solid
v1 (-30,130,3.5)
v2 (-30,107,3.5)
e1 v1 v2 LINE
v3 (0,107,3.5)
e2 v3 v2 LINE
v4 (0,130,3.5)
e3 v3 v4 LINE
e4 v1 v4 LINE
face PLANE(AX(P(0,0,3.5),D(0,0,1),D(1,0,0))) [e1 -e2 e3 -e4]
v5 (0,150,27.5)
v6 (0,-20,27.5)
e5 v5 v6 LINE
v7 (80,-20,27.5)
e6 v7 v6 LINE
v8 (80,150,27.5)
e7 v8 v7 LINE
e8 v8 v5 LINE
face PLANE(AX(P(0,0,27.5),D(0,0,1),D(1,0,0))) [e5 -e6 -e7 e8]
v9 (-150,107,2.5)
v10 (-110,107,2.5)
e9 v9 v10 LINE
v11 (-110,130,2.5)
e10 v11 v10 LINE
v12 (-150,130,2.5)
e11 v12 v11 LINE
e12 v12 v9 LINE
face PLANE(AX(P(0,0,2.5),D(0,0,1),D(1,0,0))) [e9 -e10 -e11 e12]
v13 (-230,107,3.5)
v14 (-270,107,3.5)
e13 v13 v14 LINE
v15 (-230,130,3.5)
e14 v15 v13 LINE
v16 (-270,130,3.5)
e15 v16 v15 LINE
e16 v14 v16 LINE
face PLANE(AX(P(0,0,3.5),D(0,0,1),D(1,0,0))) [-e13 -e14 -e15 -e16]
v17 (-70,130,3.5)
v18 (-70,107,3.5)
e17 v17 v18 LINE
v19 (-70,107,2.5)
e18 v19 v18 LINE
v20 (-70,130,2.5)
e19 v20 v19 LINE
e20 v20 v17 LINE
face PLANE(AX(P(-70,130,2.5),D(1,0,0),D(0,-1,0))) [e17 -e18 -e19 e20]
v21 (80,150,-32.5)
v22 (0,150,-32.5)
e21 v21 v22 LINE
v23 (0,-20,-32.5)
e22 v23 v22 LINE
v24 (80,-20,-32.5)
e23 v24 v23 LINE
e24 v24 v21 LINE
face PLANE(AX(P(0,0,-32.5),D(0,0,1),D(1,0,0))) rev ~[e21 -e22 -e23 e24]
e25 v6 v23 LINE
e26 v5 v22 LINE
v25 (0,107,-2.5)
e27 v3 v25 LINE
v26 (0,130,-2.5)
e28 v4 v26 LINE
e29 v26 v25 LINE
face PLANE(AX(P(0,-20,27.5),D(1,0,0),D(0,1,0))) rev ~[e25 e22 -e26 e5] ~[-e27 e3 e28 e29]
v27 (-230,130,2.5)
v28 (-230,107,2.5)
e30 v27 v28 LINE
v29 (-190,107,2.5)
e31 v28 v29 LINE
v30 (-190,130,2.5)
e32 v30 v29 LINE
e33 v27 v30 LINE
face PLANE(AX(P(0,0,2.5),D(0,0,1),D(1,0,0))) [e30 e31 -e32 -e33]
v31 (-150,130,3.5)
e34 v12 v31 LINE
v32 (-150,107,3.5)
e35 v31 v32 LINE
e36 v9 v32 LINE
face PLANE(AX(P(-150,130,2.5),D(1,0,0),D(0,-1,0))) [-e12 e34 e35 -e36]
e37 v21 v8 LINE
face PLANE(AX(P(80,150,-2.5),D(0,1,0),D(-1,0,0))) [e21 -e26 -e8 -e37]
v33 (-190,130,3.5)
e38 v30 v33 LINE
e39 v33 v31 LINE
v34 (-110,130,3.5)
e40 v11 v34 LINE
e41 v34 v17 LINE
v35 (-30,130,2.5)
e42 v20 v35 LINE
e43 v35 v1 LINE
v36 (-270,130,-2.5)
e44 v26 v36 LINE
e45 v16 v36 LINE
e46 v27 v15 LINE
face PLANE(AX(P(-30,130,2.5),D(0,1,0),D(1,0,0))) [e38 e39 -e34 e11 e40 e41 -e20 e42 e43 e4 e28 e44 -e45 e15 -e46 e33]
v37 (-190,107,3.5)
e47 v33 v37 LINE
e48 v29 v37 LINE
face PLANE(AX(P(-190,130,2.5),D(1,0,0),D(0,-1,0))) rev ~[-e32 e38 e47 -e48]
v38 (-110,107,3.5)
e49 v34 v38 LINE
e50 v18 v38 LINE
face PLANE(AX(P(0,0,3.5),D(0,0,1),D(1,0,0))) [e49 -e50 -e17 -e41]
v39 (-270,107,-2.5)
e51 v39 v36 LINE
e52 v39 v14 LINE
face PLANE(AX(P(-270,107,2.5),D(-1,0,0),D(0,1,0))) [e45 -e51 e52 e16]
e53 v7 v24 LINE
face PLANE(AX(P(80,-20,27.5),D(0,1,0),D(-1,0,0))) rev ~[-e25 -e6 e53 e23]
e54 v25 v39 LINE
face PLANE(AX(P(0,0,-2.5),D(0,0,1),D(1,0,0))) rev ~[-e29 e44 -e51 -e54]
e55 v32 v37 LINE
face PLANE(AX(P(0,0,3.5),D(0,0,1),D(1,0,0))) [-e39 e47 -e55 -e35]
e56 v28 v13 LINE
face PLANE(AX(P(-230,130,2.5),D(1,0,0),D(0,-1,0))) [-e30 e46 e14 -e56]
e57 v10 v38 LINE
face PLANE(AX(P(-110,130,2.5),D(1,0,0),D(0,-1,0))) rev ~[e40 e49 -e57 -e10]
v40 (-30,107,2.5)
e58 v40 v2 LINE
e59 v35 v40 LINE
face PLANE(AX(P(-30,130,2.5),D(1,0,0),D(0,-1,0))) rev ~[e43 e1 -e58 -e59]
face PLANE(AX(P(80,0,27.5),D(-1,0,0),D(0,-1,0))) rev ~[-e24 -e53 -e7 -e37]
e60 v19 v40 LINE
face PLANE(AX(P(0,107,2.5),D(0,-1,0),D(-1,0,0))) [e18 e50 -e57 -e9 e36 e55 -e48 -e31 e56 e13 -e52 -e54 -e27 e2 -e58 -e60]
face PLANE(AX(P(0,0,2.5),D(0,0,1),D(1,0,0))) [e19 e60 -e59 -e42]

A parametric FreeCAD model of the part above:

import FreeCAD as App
import Part
import Sketcher
Q = App.Units.Quantity

doc = App.newDocument("Part")
params = doc.addObject("Spreadsheet::Sheet", "Params")
for row, (alias, value) in enumerate([
    ("sketch1_width", "300 mm"),
    ("sketch1_height", "23 mm"),
    ("pad1_length", "5 mm"),
    ("sketch2_width", "80 mm"),
    ("sketch2_height", "150 mm"),
    ("pad2_length", "60 mm"),
    ("sketch3_width", "40 mm"),
    ("sketch3_height", "23 mm"),
    ("pad3_length", "1 mm"),
    ("sketch4_width", "40 mm"),
    ("sketch4_height", "23 mm"),
    ("pad4_length", "1 mm"),
    ("sketch5_width", "40 mm"),
    ("sketch5_height", "23 mm"),
    ("pad5_length", "1 mm"),
    ("sketch6_width", "30 mm"),
    ("sketch6_height", "23 mm"),
    ("pad6_length", "1 mm"),
    ("sketch7_height", "20 mm"),
    ("sketch7_width", "80 mm"),
    ("pad7_length", "60 mm"),
], start=1):
    params.set(f"A{row}", alias)
    params.set(f"B{row}", "=" + value)
    params.setAlias(f"B{row}", alias)

body = doc.addObject("PartDesign::Body", "Body")

sketch1 = body.newObject("Sketcher::SketchObject", "Sketch")
sketch1.AttachmentSupport = (doc.getObject("XY_Plane"), [""])
sketch1.MapMode = "FlatFace"
sketch1.addGeometry([
    Part.LineSegment(App.Vector(-270, 130, 0), App.Vector(-270, 107, 0)),
    Part.LineSegment(App.Vector(-270, 107, 0), App.Vector(30, 107, 0)),
    Part.LineSegment(App.Vector(30, 107, 0), App.Vector(30, 130, 0)),
    Part.LineSegment(App.Vector(30, 130, 0), App.Vector(-270, 130, 0)),
], False)
sketch1.addConstraint([
    Sketcher.Constraint("Coincident", 0, 2, 1, 1),
    Sketcher.Constraint("Coincident", 1, 2, 2, 1),
    Sketcher.Constraint("Coincident", 2, 2, 3, 1),
    Sketcher.Constraint("Coincident", 3, 2, 0, 1),
    Sketcher.Constraint("Vertical", 0),
    Sketcher.Constraint("Horizontal", 1),
    Sketcher.Constraint("Vertical", 2),
    Sketcher.Constraint("Horizontal", 3),
    Sketcher.Constraint("DistanceX", 1, 1, 1, 2, Q("300 mm")),
    Sketcher.Constraint("DistanceY", 0, 2, 0, 1, Q("23 mm")),
    Sketcher.Constraint("DistanceX", -1, 1, 1, 2, Q("30 mm")),
    Sketcher.Constraint("DistanceY", -1, 1, 0, 2, Q("107 mm")),
])
sketch1.setExpression("Constraints[8]", "Params.sketch1_width")
sketch1.setExpression("Constraints[9]", "Params.sketch1_height")
pad1 = body.newObject("PartDesign::Pad", "Pad")
pad1.Profile = sketch1
pad1.setExpression("Length", "Params.pad1_length")
pad1.Midplane = True

sketch2 = body.newObject("Sketcher::SketchObject", "Sketch001")
sketch2.AttachmentSupport = (doc.getObject("XY_Plane"), [""])
sketch2.MapMode = "FlatFace"
sketch2.AttachmentOffset = App.Placement(App.Vector(0, 0, -2.5), App.Rotation())
sketch2.addGeometry([
    Part.LineSegment(App.Vector(80, 0, 0), App.Vector(0, 0, 0)),
    Part.LineSegment(App.Vector(0, 0, 0), App.Vector(0, 150, 0)),
    Part.LineSegment(App.Vector(0, 150, 0), App.Vector(80, 150, 0)),
    Part.LineSegment(App.Vector(80, 150, 0), App.Vector(80, 0, 0)),
], False)
sketch2.addConstraint([
    Sketcher.Constraint("Coincident", 0, 2, 1, 1),
    Sketcher.Constraint("Coincident", 1, 2, 2, 1),
    Sketcher.Constraint("Coincident", 2, 2, 3, 1),
    Sketcher.Constraint("Coincident", 3, 2, 0, 1),
    Sketcher.Constraint("Horizontal", 0),
    Sketcher.Constraint("Vertical", 1),
    Sketcher.Constraint("Horizontal", 2),
    Sketcher.Constraint("Vertical", 3),
    Sketcher.Constraint("Coincident", 0, 2, -1, 1),
    Sketcher.Constraint("DistanceX", 0, 2, 0, 1, Q("80 mm")),
    Sketcher.Constraint("DistanceY", 1, 1, 1, 2, Q("150 mm")),
])
sketch2.setExpression("Constraints[9]", "Params.sketch2_width")
sketch2.setExpression("Constraints[10]", "Params.sketch2_height")
pad2 = body.newObject("PartDesign::Pad", "Pad001")
pad2.Profile = sketch2
pad2.setExpression("Length", "Params.pad2_length")
pad2.Midplane = True

sketch3 = body.newObject("Sketcher::SketchObject", "Sketch002")
sketch3.AttachmentSupport = (doc.getObject("XY_Plane"), [""])
sketch3.MapMode = "FlatFace"
sketch3.AttachmentOffset = App.Placement(App.Vector(0, 0, 2.5), App.Rotation())
sketch3.addGeometry([
    Part.LineSegment(App.Vector(-270, 130, 0), App.Vector(-270, 107, 0)),
    Part.LineSegment(App.Vector(-270, 107, 0), App.Vector(-230, 107, 0)),
    Part.LineSegment(App.Vector(-230, 107, 0), App.Vector(-230, 130, 0)),
    Part.LineSegment(App.Vector(-230, 130, 0), App.Vector(-270, 130, 0)),
], False)
sketch3.addConstraint([
    Sketcher.Constraint("Coincident", 0, 2, 1, 1),
    Sketcher.Constraint("Coincident", 1, 2, 2, 1),
    Sketcher.Constraint("Coincident", 2, 2, 3, 1),
    Sketcher.Constraint("Coincident", 3, 2, 0, 1),
    Sketcher.Constraint("Vertical", 0),
    Sketcher.Constraint("Horizontal", 1),
    Sketcher.Constraint("Vertical", 2),
    Sketcher.Constraint("Horizontal", 3),
    Sketcher.Constraint("DistanceX", 1, 1, 1, 2, Q("40 mm")),
    Sketcher.Constraint("DistanceY", 0, 2, 0, 1, Q("23 mm")),
    Sketcher.Constraint("DistanceX", 0, 2, -1, 1, Q("270 mm")),
    Sketcher.Constraint("DistanceY", -1, 1, 0, 2, Q("107 mm")),
])
sketch3.setExpression("Constraints[8]", "Params.sketch3_width")
sketch3.setExpression("Constraints[9]", "Params.sketch3_height")
pad3 = body.newObject("PartDesign::Pad", "Pad002")
pad3.Profile = sketch3
pad3.setExpression("Length", "Params.pad3_length")

sketch4 = body.newObject("Sketcher::SketchObject", "Sketch003")
sketch4.AttachmentSupport = (doc.getObject("XY_Plane"), [""])
sketch4.MapMode = "FlatFace"
sketch4.AttachmentOffset = App.Placement(App.Vector(0, 0, 2.5), App.Rotation())
sketch4.addGeometry([
    Part.LineSegment(App.Vector(-190, 130, 0), App.Vector(-190, 107, 0)),
    Part.LineSegment(App.Vector(-190, 107, 0), App.Vector(-150, 107, 0)),
    Part.LineSegment(App.Vector(-150, 107, 0), App.Vector(-150, 130, 0)),
    Part.LineSegment(App.Vector(-150, 130, 0), App.Vector(-190, 130, 0)),
], False)
sketch4.addConstraint([
    Sketcher.Constraint("Coincident", 0, 2, 1, 1),
    Sketcher.Constraint("Coincident", 1, 2, 2, 1),
    Sketcher.Constraint("Coincident", 2, 2, 3, 1),
    Sketcher.Constraint("Coincident", 3, 2, 0, 1),
    Sketcher.Constraint("Vertical", 0),
    Sketcher.Constraint("Horizontal", 1),
    Sketcher.Constraint("Vertical", 2),
    Sketcher.Constraint("Horizontal", 3),
    Sketcher.Constraint("DistanceX", 1, 1, 1, 2, Q("40 mm")),
    Sketcher.Constraint("DistanceY", 0, 2, 0, 1, Q("23 mm")),
    Sketcher.Constraint("DistanceX", 0, 2, -1, 1, Q("190 mm")),
    Sketcher.Constraint("DistanceY", -1, 1, 0, 2, Q("107 mm")),
])
sketch4.setExpression("Constraints[8]", "Params.sketch4_width")
sketch4.setExpression("Constraints[9]", "Params.sketch4_height")
pad4 = body.newObject("PartDesign::Pad", "Pad003")
pad4.Profile = sketch4
pad4.setExpression("Length", "Params.pad4_length")

sketch5 = body.newObject("Sketcher::SketchObject", "Sketch004")
sketch5.AttachmentSupport = (doc.getObject("XY_Plane"), [""])
sketch5.MapMode = "FlatFace"
sketch5.AttachmentOffset = App.Placement(App.Vector(0, 0, 2.5), App.Rotation())
sketch5.addGeometry([
    Part.LineSegment(App.Vector(-70, 130, 0), App.Vector(-110, 130, 0)),
    Part.LineSegment(App.Vector(-110, 130, 0), App.Vector(-110, 107, 0)),
    Part.LineSegment(App.Vector(-110, 107, 0), App.Vector(-70, 107, 0)),
    Part.LineSegment(App.Vector(-70, 107, 0), App.Vector(-70, 130, 0)),
], False)
sketch5.addConstraint([
    Sketcher.Constraint("Coincident", 0, 2, 1, 1),
    Sketcher.Constraint("Coincident", 1, 2, 2, 1),
    Sketcher.Constraint("Coincident", 2, 2, 3, 1),
    Sketcher.Constraint("Coincident", 3, 2, 0, 1),
    Sketcher.Constraint("Horizontal", 0),
    Sketcher.Constraint("Vertical", 1),
    Sketcher.Constraint("Horizontal", 2),
    Sketcher.Constraint("Vertical", 3),
    Sketcher.Constraint("DistanceX", 0, 2, 0, 1, Q("40 mm")),
    Sketcher.Constraint("DistanceY", 1, 2, 1, 1, Q("23 mm")),
    Sketcher.Constraint("DistanceX", 0, 2, -1, 1, Q("110 mm")),
    Sketcher.Constraint("DistanceY", -1, 1, 0, 2, Q("130 mm")),
])
sketch5.setExpression("Constraints[8]", "Params.sketch5_width")
sketch5.setExpression("Constraints[9]", "Params.sketch5_height")
pad5 = body.newObject("PartDesign::Pad", "Pad004")
pad5.Profile = sketch5
pad5.setExpression("Length", "Params.pad5_length")

sketch6 = body.newObject("Sketcher::SketchObject", "Sketch005")
sketch6.AttachmentSupport = (doc.getObject("XY_Plane"), [""])
sketch6.MapMode = "FlatFace"
sketch6.AttachmentOffset = App.Placement(App.Vector(0, 0, 2.5), App.Rotation())
sketch6.addGeometry([
    Part.LineSegment(App.Vector(0, 130, 0), App.Vector(-30, 130, 0)),
    Part.LineSegment(App.Vector(-30, 130, 0), App.Vector(-30, 107, 0)),
    Part.LineSegment(App.Vector(-30, 107, 0), App.Vector(0, 107, 0)),
    Part.LineSegment(App.Vector(0, 107, 0), App.Vector(0, 130, 0)),
], False)
sketch6.addConstraint([
    Sketcher.Constraint("Coincident", 0, 2, 1, 1),
    Sketcher.Constraint("Coincident", 1, 2, 2, 1),
    Sketcher.Constraint("Coincident", 2, 2, 3, 1),
    Sketcher.Constraint("Coincident", 3, 2, 0, 1),
    Sketcher.Constraint("Horizontal", 0),
    Sketcher.Constraint("Vertical", 1),
    Sketcher.Constraint("Horizontal", 2),
    Sketcher.Constraint("Vertical", 3),
    Sketcher.Constraint("PointOnObject", 2, 2, -2),
    Sketcher.Constraint("DistanceX", 0, 2, 0, 1, Q("30 mm")),
    Sketcher.Constraint("DistanceY", 1, 2, 1, 1, Q("23 mm")),
    Sketcher.Constraint("DistanceY", -1, 1, 0, 2, Q("130 mm")),
])
sketch6.setExpression("Constraints[9]", "Params.sketch6_width")
sketch6.setExpression("Constraints[10]", "Params.sketch6_height")
pad6 = body.newObject("PartDesign::Pad", "Pad005")
pad6.Profile = sketch6
pad6.setExpression("Length", "Params.pad6_length")

sketch7 = body.newObject("Sketcher::SketchObject", "Sketch006")
sketch7.AttachmentSupport = (doc.getObject("XY_Plane"), [""])
sketch7.MapMode = "FlatFace"
sketch7.AttachmentOffset = App.Placement(App.Vector(0, 0, 27.5), App.Rotation())
sketch7.addGeometry([
    Part.LineSegment(App.Vector(80, 0, 0), App.Vector(0, 0, 0)),
    Part.LineSegment(App.Vector(0, 0, 0), App.Vector(0, -20, 0)),
    Part.LineSegment(App.Vector(0, -20, 0), App.Vector(80, -20, 0)),
    Part.LineSegment(App.Vector(80, -20, 0), App.Vector(80, 0, 0)),
], False)
sketch7.addConstraint([
    Sketcher.Constraint("Coincident", 0, 2, 1, 1),
    Sketcher.Constraint("Coincident", 1, 2, 2, 1),
    Sketcher.Constraint("Coincident", 2, 2, 3, 1),
    Sketcher.Constraint("Coincident", 3, 2, 0, 1),
    Sketcher.Constraint("Horizontal", 0),
    Sketcher.Constraint("Vertical", 1),
    Sketcher.Constraint("Horizontal", 2),
    Sketcher.Constraint("Vertical", 3),
    Sketcher.Constraint("Coincident", 0, 2, -1, 1),
    Sketcher.Constraint("DistanceY", 1, 2, 1, 1, Q("20 mm")),
    Sketcher.Constraint("DistanceX", 0, 2, 0, 1, Q("80 mm")),
])
sketch7.setExpression("Constraints[9]", "Params.sketch7_height")
sketch7.setExpression("Constraints[10]", "Params.sketch7_width")
pad7 = body.newObject("PartDesign::Pad", "Pad006")
pad7.Profile = sketch7
pad7.setExpression("Length", "Params.pad7_length")
pad7.Reversed = True

doc.recompute()
